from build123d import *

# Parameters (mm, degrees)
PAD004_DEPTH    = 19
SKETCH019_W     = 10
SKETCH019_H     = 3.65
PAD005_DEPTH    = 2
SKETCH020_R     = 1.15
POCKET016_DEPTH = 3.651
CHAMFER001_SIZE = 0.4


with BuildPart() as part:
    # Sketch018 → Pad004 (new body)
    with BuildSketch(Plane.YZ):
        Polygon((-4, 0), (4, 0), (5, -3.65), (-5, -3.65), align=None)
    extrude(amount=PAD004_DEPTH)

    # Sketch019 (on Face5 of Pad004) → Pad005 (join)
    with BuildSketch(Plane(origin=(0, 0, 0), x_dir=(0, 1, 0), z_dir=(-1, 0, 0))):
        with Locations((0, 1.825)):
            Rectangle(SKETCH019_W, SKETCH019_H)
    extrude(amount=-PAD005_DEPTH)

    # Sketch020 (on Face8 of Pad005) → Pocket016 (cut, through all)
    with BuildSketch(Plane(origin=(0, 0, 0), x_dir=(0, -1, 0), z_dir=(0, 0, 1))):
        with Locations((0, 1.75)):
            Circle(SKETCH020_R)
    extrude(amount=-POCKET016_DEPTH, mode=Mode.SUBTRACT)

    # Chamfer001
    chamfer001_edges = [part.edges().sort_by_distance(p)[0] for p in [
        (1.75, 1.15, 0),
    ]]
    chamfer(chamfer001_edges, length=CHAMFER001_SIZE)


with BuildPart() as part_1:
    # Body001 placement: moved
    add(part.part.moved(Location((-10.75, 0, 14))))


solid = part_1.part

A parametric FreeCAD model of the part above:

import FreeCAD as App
import Part
import Sketcher
Q = App.Units.Quantity


def edges_at(feature, points):
    """Names of the edges that pass closest to the given points."""
    edges = feature.Shape.Edges
    near = lambda p: min(range(len(edges)), key=lambda i: edges[i].distToShape(Part.Vertex(*p))[0])
    return sorted({f"Edge{near(p) + 1}" for p in points})

doc = App.newDocument("Part")
body = doc.addObject("PartDesign::Body", "Body")

# Sketch on YZ plane
sketch1 = doc.addObject("Sketcher::SketchObject", "Sketch")
body.addObject(sketch1)
sketch1.AttachmentSupport = (doc.YZ_Plane, [""])
sketch1.MapMode = "FlatFace"
sketch1.addGeometry([
    Part.LineSegment(App.Vector(4, 0, 0), App.Vector(-4, 0, 0)),
    Part.LineSegment(App.Vector(-4, 0, 0), App.Vector(-5, -3.6, 0)),
    Part.LineSegment(App.Vector(-5, -3.6, 0), App.Vector(5, -3.6, 0)),
    Part.LineSegment(App.Vector(5, -3.6, 0), App.Vector(4, 0, 0)),
], False)
sketch1.addConstraint([
    Sketcher.Constraint("Coincident", 0, 2, 1, 1),
    Sketcher.Constraint("Coincident", 1, 2, 2, 1),
    Sketcher.Constraint("Coincident", 2, 2, 3, 1),
    Sketcher.Constraint("Coincident", 3, 2, 0, 1),
    Sketcher.Constraint("Horizontal", 0),
    Sketcher.Constraint("Horizontal", 2),
    Sketcher.Constraint("Symmetric", 0, 2, 3, 2, -1, 1),
    Sketcher.Constraint("Equal", 1, 3),
    Sketcher.Constraint("DistanceX", 0, 2, 0, 1, Q("8 mm")),
    Sketcher.Constraint("DistanceX", 2, 1, 2, 2, Q("10 mm")),
    Sketcher.Constraint("DistanceY", 1, 2, -1, 1, Q("3.65 mm")),
])
pad1 = doc.addObject("PartDesign::Pad", "Pad")
body.addObject(pad1)
pad1.Profile = sketch1
pad1.Length = 19

# Sketch on YZ plane
sketch2 = doc.addObject("Sketcher::SketchObject", "Sketch001")
body.addObject(sketch2)
sketch2.AttachmentSupport = (doc.YZ_Plane, [""])
sketch2.MapMode = "FlatFace"
sketch2.addGeometry([
    Part.LineSegment(App.Vector(-5, -3.6, 0), App.Vector(-5, 0, 0)),
    Part.LineSegment(App.Vector(-5, 0, 0), App.Vector(5, 0, 0)),
    Part.LineSegment(App.Vector(5, 0, 0), App.Vector(5, -3.6, 0)),
    Part.LineSegment(App.Vector(5, -3.6, 0), App.Vector(-5, -3.6, 0)),
], False)
sketch2.addConstraint([
    Sketcher.Constraint("Coincident", 0, 2, 1, 1),
    Sketcher.Constraint("Coincident", 1, 2, 2, 1),
    Sketcher.Constraint("Coincident", 2, 2, 3, 1),
    Sketcher.Constraint("Coincident", 3, 2, 0, 1),
    Sketcher.Constraint("Vertical", 0),
    Sketcher.Constraint("Horizontal", 1),
    Sketcher.Constraint("Vertical", 2),
    Sketcher.Constraint("Horizontal", 3),
    Sketcher.Constraint("Symmetric", 0, 2, 1, 2, -1, 1),
    Sketcher.Constraint("DistanceX", 1, 1, 1, 2, Q("10 mm")),
    Sketcher.Constraint("DistanceY", 0, 1, 0, 2, Q("3.65 mm")),
])
pad2 = doc.addObject("PartDesign::Pad", "Pad001")
body.addObject(pad2)
pad2.Profile = sketch2
pad2.Length = 2

# Sketch on XY plane
sketch3 = doc.addObject("Sketcher::SketchObject", "Sketch002")
body.addObject(sketch3)
sketch3.AttachmentSupport = (doc.XY_Plane, [""])
sketch3.MapMode = "FlatFace"
sketch3.addGeometry(Part.Circle(App.Vector(1.8, 0, 0), App.Vector(0, 0, 1), 1.1), False)
sketch3.addConstraint([
    Sketcher.Constraint("PointOnObject", 0, 3, -1),
    Sketcher.Constraint("Diameter", 0, Q("2.3 mm")),
    Sketcher.Constraint("DistanceX", -1, 1, 0, 3, Q("1.75 mm")),
])
pocket1 = doc.addObject("PartDesign::Pocket", "Pocket")
body.addObject(pocket1)
pocket1.Profile = sketch3
pocket1.Type = "ThroughAll"
doc.recompute()

chamfer = doc.addObject("PartDesign::Chamfer", "Chamfer")
body.addObject(chamfer)
chamfer.Base = (pocket1, edges_at(pocket1, [(1.75, 1.15, 0)]))
chamfer.Size = 0.4
body2 = doc.addObject("PartDesign::Body", "Body001")
doc.recompute()

body.Placement = App.Placement(App.Vector(-10.75, 0, 14), App.Rotation(App.Vector(0, 0, 1), 0))
boolean = doc.addObject("PartDesign::Boolean", "Boolean")
body2.addObject(boolean)
boolean.Type = "Fuse"
boolean.addObjects([body])

doc.recompute()
